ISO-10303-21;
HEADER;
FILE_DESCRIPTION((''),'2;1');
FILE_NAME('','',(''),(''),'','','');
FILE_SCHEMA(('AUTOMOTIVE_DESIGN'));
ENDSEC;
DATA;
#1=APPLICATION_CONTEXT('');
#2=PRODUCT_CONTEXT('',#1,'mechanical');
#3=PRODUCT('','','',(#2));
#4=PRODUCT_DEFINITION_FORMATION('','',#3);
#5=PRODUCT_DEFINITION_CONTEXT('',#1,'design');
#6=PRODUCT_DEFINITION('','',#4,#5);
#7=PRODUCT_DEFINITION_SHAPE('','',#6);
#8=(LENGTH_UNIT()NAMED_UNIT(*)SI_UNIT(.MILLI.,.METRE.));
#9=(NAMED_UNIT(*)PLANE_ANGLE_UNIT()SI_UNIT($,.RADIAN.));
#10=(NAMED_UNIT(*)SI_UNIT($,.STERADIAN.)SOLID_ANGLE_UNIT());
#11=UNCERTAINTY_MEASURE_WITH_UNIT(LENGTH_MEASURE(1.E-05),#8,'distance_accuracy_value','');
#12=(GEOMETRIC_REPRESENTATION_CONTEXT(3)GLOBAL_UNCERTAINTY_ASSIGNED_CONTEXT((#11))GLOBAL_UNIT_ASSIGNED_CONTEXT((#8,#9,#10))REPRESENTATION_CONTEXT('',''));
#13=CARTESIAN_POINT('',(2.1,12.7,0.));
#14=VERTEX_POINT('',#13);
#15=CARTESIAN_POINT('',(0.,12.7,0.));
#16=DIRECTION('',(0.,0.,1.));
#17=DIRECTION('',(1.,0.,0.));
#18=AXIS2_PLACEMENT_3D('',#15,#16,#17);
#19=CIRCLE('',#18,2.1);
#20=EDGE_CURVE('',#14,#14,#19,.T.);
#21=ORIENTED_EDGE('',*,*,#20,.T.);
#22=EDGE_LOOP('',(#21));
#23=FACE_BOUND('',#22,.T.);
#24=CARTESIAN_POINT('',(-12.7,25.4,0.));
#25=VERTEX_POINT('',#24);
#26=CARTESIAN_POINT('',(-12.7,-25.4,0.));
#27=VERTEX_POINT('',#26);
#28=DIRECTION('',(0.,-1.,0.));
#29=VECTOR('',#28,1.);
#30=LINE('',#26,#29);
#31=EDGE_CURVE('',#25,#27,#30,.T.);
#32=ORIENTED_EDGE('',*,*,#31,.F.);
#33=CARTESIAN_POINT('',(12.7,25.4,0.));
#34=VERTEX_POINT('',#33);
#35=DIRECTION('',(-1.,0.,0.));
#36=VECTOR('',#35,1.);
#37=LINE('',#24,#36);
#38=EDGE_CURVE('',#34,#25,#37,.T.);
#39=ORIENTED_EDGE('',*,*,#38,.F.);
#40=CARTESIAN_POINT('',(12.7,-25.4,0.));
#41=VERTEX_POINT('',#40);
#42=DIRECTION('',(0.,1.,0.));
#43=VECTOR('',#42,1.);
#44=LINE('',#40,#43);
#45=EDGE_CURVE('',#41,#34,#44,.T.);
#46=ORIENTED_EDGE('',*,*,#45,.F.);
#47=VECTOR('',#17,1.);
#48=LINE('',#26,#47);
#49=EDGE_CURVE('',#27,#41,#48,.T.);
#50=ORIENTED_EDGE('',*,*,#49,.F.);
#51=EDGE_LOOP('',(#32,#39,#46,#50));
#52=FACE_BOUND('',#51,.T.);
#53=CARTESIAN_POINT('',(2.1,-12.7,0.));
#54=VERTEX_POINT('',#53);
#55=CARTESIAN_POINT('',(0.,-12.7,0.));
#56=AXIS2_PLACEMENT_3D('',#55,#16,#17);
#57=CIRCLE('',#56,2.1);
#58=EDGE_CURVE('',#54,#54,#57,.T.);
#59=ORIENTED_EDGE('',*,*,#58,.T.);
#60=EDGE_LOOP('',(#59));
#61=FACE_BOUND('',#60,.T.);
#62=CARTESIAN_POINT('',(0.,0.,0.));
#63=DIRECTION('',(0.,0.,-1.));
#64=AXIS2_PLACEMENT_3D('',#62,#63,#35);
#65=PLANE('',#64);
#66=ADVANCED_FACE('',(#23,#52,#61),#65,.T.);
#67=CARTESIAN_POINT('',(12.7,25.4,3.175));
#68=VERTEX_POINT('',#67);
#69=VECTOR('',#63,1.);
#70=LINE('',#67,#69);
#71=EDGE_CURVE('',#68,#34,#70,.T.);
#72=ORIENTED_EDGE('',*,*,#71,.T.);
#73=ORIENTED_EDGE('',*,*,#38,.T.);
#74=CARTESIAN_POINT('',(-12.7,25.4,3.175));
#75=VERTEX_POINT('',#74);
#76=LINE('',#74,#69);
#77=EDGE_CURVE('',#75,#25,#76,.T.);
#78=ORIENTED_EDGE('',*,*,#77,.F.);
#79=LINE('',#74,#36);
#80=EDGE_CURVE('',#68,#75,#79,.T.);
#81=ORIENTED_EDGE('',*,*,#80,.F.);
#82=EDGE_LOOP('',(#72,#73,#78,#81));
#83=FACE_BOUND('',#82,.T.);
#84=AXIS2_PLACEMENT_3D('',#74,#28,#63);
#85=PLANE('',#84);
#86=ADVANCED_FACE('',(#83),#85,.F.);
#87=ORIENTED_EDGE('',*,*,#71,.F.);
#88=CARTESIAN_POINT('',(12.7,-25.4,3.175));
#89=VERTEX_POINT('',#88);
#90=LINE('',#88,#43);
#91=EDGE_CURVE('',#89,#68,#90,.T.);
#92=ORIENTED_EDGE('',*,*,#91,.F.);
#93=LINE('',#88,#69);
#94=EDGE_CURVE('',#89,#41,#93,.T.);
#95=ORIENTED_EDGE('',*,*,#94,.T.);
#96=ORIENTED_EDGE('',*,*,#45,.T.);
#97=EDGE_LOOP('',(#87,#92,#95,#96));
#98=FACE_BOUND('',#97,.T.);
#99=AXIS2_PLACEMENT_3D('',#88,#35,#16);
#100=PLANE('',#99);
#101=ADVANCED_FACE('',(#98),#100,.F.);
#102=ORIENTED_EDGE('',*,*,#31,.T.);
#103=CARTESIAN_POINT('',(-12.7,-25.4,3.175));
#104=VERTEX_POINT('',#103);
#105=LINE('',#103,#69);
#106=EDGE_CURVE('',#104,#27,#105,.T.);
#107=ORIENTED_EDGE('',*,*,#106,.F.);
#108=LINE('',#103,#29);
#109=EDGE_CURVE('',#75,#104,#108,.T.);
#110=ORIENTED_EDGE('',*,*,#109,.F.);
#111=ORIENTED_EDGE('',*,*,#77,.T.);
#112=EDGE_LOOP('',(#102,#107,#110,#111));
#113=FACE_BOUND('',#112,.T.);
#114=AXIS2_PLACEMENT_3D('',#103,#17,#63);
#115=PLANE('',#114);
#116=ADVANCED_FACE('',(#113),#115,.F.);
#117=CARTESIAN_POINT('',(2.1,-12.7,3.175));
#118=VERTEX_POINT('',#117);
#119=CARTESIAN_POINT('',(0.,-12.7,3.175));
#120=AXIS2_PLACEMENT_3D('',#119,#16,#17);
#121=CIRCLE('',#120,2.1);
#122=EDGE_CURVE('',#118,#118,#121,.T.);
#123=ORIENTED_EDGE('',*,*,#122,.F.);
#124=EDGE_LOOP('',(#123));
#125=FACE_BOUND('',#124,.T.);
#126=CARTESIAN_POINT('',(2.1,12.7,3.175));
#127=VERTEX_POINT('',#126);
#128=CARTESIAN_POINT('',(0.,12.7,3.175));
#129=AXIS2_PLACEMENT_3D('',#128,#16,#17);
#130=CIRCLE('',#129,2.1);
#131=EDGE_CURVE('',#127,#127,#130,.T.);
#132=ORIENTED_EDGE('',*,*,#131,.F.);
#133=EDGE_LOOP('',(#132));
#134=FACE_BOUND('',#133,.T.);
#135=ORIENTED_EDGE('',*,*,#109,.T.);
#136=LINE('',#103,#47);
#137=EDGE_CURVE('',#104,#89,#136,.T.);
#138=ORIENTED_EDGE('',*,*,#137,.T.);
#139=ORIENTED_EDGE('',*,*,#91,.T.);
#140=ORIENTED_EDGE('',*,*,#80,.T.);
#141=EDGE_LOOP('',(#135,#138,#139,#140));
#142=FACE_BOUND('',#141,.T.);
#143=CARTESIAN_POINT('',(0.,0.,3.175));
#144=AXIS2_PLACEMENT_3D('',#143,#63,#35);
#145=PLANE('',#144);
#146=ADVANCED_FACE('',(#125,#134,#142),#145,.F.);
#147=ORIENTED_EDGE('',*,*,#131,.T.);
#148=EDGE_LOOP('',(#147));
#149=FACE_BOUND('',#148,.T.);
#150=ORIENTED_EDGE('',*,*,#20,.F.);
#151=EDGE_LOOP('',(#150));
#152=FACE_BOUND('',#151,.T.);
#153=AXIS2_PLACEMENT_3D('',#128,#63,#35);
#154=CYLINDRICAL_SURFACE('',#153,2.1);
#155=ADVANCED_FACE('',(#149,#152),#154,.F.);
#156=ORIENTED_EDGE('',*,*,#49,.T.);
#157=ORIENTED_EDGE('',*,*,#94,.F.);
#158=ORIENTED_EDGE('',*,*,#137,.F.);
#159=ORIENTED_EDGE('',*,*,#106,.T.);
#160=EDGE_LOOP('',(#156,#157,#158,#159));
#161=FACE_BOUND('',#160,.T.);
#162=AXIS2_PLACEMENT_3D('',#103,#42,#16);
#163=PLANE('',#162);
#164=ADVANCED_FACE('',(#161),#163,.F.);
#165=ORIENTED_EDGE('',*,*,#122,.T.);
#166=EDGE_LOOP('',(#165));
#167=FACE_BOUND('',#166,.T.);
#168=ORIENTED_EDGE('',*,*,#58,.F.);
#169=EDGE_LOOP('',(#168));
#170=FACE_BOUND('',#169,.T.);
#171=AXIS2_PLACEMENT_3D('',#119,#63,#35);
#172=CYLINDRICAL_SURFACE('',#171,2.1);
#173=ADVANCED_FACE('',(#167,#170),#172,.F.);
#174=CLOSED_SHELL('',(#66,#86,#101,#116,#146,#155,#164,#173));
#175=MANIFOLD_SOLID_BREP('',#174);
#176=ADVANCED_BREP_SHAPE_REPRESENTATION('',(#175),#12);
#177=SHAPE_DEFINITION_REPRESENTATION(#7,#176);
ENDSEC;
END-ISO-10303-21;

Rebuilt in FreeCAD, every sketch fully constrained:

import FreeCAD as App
import Part
import Sketcher
Q = App.Units.Quantity

doc = App.newDocument("Part")
body = doc.addObject("PartDesign::Body", "Body")

sketch1 = body.newObject("Sketcher::SketchObject", "Sketch")
sketch1.AttachmentSupport = (doc.getObject("XY_Plane"), [""])
sketch1.MapMode = "FlatFace"
sketch1.addGeometry([
    Part.LineSegment(App.Vector(-12.7, 25.4, 0), App.Vector(-12.7, -25.4, 0)),
    Part.LineSegment(App.Vector(-12.7, -25.4, 0), App.Vector(12.7, -25.4, 0)),
    Part.LineSegment(App.Vector(12.7, -25.4, 0), App.Vector(12.7, 25.4, 0)),
    Part.LineSegment(App.Vector(12.7, 25.4, 0), App.Vector(-12.7, 25.4, 0)),
    Part.Circle(App.Vector(0, -12.7, 0), App.Vector(0, 0, 1), 2.1),
    Part.Circle(App.Vector(0, 12.7, 0), App.Vector(0, 0, 1), 2.1),
], False)
sketch1.addConstraint([
    Sketcher.Constraint("Coincident", 0, 2, 1, 1),
    Sketcher.Constraint("Coincident", 1, 2, 2, 1),
    Sketcher.Constraint("Coincident", 2, 2, 3, 1),
    Sketcher.Constraint("Coincident", 3, 2, 0, 1),
    Sketcher.Constraint("Vertical", 0),
    Sketcher.Constraint("Horizontal", 1),
    Sketcher.Constraint("Vertical", 2),
    Sketcher.Constraint("Horizontal", 3),
    Sketcher.Constraint("Equal", 4, 5),
    Sketcher.Constraint("Symmetric", 4, 3, 5, 3, -1, 1),
    Sketcher.Constraint("Symmetric", 0, 2, 2, 2, -1, 1),
    Sketcher.Constraint("PointOnObject", 4, 3, -2),
    Sketcher.Constraint("DistanceX", 1, 1, 1, 2, Q("1 in")),
    Sketcher.Constraint("DistanceY", 0, 2, 0, 1, Q("2 in")),
    Sketcher.Constraint("DistanceY", 4, 3, 5, 3, Q("1 in")),
    Sketcher.Constraint("Diameter", 4, Q("4.2 mm")),
])
pad1 = body.newObject("PartDesign::Pad", "Pad")
pad1.Profile = sketch1
pad1.Length = Q("0.125 in")

doc.recompute()
